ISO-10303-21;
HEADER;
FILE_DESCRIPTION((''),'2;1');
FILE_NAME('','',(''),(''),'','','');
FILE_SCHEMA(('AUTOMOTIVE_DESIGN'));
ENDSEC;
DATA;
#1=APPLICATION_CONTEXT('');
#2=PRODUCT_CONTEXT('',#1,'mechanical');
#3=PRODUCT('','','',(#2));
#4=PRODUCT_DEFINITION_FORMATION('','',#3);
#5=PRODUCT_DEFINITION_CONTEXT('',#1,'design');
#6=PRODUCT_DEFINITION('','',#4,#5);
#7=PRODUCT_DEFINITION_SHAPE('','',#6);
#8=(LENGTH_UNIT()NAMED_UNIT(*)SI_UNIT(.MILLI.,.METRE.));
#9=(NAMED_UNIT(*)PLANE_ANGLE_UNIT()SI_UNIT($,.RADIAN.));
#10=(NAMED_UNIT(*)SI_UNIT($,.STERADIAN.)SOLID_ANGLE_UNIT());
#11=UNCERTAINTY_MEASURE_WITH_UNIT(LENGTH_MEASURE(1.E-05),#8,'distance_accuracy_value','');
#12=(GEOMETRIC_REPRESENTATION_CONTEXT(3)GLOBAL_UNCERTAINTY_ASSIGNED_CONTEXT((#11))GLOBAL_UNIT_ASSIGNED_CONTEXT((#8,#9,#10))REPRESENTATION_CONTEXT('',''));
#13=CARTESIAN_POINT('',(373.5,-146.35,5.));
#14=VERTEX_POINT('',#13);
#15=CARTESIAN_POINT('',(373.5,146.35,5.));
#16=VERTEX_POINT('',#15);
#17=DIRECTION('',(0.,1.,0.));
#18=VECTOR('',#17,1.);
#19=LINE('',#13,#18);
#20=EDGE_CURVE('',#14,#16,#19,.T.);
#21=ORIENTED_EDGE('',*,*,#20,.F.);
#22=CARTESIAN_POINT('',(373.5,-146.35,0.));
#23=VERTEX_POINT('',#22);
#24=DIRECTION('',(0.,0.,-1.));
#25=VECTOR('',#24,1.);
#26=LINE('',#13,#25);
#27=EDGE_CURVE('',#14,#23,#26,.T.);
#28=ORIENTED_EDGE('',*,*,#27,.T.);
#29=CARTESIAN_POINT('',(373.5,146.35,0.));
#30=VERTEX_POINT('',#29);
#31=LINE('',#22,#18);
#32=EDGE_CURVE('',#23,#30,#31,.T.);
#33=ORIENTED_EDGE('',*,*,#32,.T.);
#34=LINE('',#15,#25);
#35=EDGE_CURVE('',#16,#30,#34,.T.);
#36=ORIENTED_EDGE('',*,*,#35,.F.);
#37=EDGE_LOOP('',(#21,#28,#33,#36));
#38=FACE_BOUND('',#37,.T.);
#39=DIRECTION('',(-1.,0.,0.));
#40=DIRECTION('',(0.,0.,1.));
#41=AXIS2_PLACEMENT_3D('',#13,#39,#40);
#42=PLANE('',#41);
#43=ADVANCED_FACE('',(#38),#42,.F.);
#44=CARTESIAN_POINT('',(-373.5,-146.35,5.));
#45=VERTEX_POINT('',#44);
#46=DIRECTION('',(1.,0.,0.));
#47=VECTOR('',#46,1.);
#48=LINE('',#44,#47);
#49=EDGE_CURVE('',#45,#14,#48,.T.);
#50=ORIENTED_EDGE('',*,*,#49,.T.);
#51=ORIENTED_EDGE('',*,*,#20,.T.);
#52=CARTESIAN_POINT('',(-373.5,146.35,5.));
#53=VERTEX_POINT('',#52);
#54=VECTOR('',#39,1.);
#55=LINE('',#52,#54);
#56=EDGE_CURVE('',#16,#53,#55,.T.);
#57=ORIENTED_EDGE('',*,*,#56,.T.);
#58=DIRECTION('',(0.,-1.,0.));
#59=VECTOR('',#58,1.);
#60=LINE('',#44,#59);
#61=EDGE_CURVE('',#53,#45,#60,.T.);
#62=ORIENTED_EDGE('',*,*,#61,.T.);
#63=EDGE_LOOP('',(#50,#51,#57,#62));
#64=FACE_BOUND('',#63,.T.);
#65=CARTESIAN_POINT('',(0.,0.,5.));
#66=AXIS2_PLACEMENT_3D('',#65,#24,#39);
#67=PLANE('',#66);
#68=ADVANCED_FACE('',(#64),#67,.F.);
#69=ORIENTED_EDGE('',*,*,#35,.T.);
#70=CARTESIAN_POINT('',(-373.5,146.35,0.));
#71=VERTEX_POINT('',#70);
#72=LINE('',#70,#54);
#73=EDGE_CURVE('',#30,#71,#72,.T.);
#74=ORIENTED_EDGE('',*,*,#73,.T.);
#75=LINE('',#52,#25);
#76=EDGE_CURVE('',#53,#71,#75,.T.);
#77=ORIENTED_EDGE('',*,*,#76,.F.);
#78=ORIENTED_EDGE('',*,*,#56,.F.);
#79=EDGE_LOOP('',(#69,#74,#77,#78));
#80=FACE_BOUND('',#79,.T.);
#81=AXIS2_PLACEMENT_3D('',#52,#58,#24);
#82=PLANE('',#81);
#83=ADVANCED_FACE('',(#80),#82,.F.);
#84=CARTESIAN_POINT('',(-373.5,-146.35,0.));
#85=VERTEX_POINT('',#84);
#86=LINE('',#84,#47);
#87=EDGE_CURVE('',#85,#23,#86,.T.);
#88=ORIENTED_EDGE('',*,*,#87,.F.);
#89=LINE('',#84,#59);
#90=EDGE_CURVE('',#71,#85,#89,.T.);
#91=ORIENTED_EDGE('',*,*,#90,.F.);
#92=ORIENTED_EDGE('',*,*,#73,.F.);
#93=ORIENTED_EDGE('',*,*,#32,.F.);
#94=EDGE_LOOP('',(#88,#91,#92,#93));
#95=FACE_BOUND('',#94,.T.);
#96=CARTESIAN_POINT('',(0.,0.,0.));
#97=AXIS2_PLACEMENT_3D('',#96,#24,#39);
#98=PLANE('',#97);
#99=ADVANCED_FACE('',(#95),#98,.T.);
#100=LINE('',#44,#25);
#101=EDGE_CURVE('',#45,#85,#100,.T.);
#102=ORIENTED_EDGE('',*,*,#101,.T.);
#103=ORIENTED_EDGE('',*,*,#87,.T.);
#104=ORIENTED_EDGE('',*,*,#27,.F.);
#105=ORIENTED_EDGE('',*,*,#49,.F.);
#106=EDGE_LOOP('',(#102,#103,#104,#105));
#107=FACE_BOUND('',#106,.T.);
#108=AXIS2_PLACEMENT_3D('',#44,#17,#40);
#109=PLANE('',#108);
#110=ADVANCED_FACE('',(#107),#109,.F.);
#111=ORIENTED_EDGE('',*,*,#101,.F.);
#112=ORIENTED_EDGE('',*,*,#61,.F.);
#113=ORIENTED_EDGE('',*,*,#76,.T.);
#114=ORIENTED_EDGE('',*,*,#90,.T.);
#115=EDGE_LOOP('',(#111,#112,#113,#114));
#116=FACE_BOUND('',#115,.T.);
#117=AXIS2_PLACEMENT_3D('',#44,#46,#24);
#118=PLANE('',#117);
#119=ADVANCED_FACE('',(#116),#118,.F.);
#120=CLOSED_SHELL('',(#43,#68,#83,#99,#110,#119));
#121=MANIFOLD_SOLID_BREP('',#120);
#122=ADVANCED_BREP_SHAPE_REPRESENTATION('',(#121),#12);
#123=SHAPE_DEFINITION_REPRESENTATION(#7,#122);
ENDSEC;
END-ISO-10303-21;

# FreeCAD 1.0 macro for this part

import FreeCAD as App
import Part
import Sketcher

V = App.Vector


def add_polygon(sketch, points):
    """Adds a closed chain of lines whose ends are joined by coincident constraints."""
    first, n = sketch.GeometryCount, len(points)
    for a, b in zip(points, points[1:] + points[:1]):
        sketch.addGeometry(Part.LineSegment(App.Vector(*a, 0), App.Vector(*b, 0)), False)
    for i in range(n):
        sketch.addConstraint(Sketcher.Constraint("Coincident", first + i, 2, first + (i + 1) % n, 1))

doc = App.newDocument("Part")
body = doc.addObject("PartDesign::Body", "Body")

sketch1 = doc.addObject("Sketcher::SketchObject", "Sketch")
body.addObject(sketch1)
sketch1.AttachmentSupport = (doc.XY_Plane, [""])
sketch1.MapMode = "FlatFace"
add_polygon(sketch1, [(-374, 146), (-374, -146), (374, -146), (374, 146)])
sketch1.addConstraint(Sketcher.Constraint("Vertical", 0))
sketch1.addConstraint(Sketcher.Constraint("Horizontal", 1))
sketch1.addConstraint(Sketcher.Constraint("Vertical", 2))
sketch1.addConstraint(Sketcher.Constraint("Horizontal", 3))
sketch1.addConstraint(Sketcher.Constraint("Symmetric", 0, 2, 2, 2, -1, 1))
sketch1.addConstraint(Sketcher.Constraint("DistanceX", 1, 1, 1, 2, 747.0))
sketch1.addConstraint(Sketcher.Constraint("DistanceY", 0, 2, 0, 1, 292.7))
pad1 = doc.addObject("PartDesign::Pad", "Pad")
body.addObject(pad1)
pad1.Profile = sketch1
pad1.Length = 5

doc.recompute()
